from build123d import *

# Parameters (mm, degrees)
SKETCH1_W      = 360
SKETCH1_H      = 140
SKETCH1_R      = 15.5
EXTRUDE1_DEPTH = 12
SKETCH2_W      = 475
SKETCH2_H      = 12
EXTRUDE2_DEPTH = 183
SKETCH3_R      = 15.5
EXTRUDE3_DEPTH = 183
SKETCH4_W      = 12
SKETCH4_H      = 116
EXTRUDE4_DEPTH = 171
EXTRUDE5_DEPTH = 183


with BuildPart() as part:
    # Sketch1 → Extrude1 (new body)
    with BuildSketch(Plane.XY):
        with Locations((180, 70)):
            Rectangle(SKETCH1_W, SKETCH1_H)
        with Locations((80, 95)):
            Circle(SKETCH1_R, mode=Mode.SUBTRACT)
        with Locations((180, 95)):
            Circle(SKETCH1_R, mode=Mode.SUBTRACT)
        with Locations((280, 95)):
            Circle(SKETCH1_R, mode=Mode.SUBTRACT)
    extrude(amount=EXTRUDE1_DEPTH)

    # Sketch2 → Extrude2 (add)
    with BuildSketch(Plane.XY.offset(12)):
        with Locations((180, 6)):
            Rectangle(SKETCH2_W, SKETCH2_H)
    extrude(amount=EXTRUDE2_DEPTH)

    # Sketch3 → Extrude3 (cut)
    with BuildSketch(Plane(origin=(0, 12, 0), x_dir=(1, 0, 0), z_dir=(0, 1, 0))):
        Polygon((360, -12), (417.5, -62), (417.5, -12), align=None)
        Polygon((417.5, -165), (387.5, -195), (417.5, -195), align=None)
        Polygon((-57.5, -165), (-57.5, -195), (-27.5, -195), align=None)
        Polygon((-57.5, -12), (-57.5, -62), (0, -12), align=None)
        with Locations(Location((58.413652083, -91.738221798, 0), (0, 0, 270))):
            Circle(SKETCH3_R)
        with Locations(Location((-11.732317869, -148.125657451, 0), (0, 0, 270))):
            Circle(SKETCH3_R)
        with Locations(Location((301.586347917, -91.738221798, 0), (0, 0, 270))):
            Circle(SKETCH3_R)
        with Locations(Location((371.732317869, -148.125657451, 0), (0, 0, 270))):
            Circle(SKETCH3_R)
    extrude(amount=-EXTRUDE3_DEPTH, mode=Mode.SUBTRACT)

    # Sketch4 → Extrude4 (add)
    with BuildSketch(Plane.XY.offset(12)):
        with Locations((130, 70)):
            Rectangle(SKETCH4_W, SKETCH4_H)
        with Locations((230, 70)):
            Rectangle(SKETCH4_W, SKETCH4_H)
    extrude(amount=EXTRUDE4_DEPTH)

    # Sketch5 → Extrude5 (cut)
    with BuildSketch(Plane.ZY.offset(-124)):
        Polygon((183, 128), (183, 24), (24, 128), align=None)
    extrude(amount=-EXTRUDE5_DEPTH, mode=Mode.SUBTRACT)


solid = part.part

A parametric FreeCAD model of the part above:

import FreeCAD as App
import Part
import Sketcher


def add_polygon(sketch, points):
    """Adds a closed chain of lines whose ends are joined by coincident constraints."""
    first, n = sketch.GeometryCount, len(points)
    for a, b in zip(points, points[1:] + points[:1]):
        sketch.addGeometry(Part.LineSegment(App.Vector(*a, 0), App.Vector(*b, 0)), False)
    for i in range(n):
        sketch.addConstraint(Sketcher.Constraint("Coincident", first + i, 2, first + (i + 1) % n, 1))

doc = App.newDocument("Part")
params = doc.addObject("Spreadsheet::Sheet", "Params")
for row, (alias, value) in enumerate([
    ("sketch1_diameter", "31 mm"),
    ("sketch1_width", "360 mm"),
    ("sketch1_height", "140 mm"),
    ("pad1_length", "12 mm"),
    ("sketch2_width", "475 mm"),
    ("sketch2_height", "12 mm"),
    ("pad2_length", "183 mm"),
    ("sketch3_diameter", "31 mm"),
    ("sketch3_width", "30 mm"),
    ("sketch3_height", "50 mm"),
    ("sketch3_width2", "57.5 mm"),
    ("pocket1_length", "183 mm"),
    ("sketch4_width", "12 mm"),
    ("sketch4_height", "116 mm"),
    ("pad3_length", "171 mm"),
    ("sketch5_width", "104 mm"),
    ("sketch5_height", "159 mm"),
    ("pocket2_length", "183 mm"),
], start=1):
    params.set(f"A{row}", alias)
    params.set(f"B{row}", "=" + value)
    params.setAlias(f"B{row}", alias)

body = doc.addObject("PartDesign::Body", "Body")

# Sketch on XY plane
sketch1 = body.newObject("Sketcher::SketchObject", "Sketch")
sketch1.AttachmentSupport = (doc.getObject("XY_Plane"), [""])
sketch1.MapMode = "FlatFace"
add_polygon(sketch1, [(0, 140), (0, 0), (360, 0), (360, 140)])  # lines 0-3
sketch1.addGeometry(Part.Circle(App.Vector(80, 95, 0), App.Vector(0, 0, 1), 16), False)  # 4
sketch1.addGeometry(Part.Circle(App.Vector(180, 95, 0), App.Vector(0, 0, 1), 16), False)  # 5
sketch1.addGeometry(Part.Circle(App.Vector(280, 95, 0), App.Vector(0, 0, 1), 16), False)  # 6
sketch1.addConstraint(Sketcher.Constraint("Vertical", 0))
sketch1.addConstraint(Sketcher.Constraint("Horizontal", 1))
sketch1.addConstraint(Sketcher.Constraint("Vertical", 2))
sketch1.addConstraint(Sketcher.Constraint("Horizontal", 3))
sketch1.addConstraint(Sketcher.Constraint("Coincident", 0, 2, -1, 1))
sketch1.addConstraint(Sketcher.Constraint("Equal", 4, 5))
sketch1.addConstraint(Sketcher.Constraint("Equal", 5, 6))
sketch1.addConstraint(Sketcher.Constraint("Horizontal", 4, 3, 5, 3))
sketch1.addConstraint(Sketcher.Constraint("Horizontal", 5, 3, 6, 3))
sketch1.addConstraint(Sketcher.Constraint("Diameter", 4, 31.0))
sketch1.addConstraint(Sketcher.Constraint("DistanceX", 1, 1, 1, 2, 360.0))
sketch1.addConstraint(Sketcher.Constraint("DistanceY", 0, 2, 0, 1, 140.0))
sketch1.addConstraint(Sketcher.Constraint("DistanceX", -1, 1, 4, 3, 80.0))
sketch1.addConstraint(Sketcher.Constraint("DistanceY", -1, 1, 4, 3, 95.0))
sketch1.addConstraint(Sketcher.Constraint("DistanceX", -1, 1, 5, 3, 180.0))
sketch1.addConstraint(Sketcher.Constraint("DistanceX", -1, 1, 6, 3, 280.0))
sketch1.setExpression("Constraints[13]", "Params.sketch1_diameter")
sketch1.setExpression("Constraints[14]", "Params.sketch1_width")
sketch1.setExpression("Constraints[15]", "Params.sketch1_height")
pad1 = body.newObject("PartDesign::Pad", "Pad")
pad1.Profile = sketch1
pad1.setExpression("Length", "Params.pad1_length")

# Sketch on XY plane
sketch2 = body.newObject("Sketcher::SketchObject", "Sketch001")
sketch2.AttachmentSupport = (doc.getObject("XY_Plane"), [""])
sketch2.MapMode = "FlatFace"
sketch2.AttachmentOffset = App.Placement(App.Vector(0, 0, 12), App.Rotation())
add_polygon(sketch2, [(-58, 12), (-58, 0), (418, 0), (418, 12)])  # lines 0-3
sketch2.addConstraint(Sketcher.Constraint("Vertical", 0))
sketch2.addConstraint(Sketcher.Constraint("Horizontal", 1))
sketch2.addConstraint(Sketcher.Constraint("Vertical", 2))
sketch2.addConstraint(Sketcher.Constraint("Horizontal", 3))
sketch2.addConstraint(Sketcher.Constraint("PointOnObject", 0, 2, -1))
sketch2.addConstraint(Sketcher.Constraint("DistanceX", 1, 1, 1, 2, 475.0))
sketch2.addConstraint(Sketcher.Constraint("DistanceY", 0, 2, 0, 1, 12.0))
sketch2.addConstraint(Sketcher.Constraint("DistanceX", 0, 2, -1, 1, 57.5))
sketch2.setExpression("Constraints[9]", "Params.sketch2_width")
sketch2.setExpression("Constraints[10]", "Params.sketch2_height")
pad2 = body.newObject("PartDesign::Pad", "Pad001")
pad2.Profile = sketch2
pad2.setExpression("Length", "Params.pad2_length")

# Sketch on XZ plane
sketch3 = body.newObject("Sketcher::SketchObject", "Sketch002")
sketch3.AttachmentSupport = (doc.getObject("XZ_Plane"), [""])
sketch3.MapMode = "FlatFace"
sketch3.AttachmentOffset = App.Placement(App.Vector(0, 0, -12), App.Rotation())
add_polygon(sketch3, [(360, 12), (418, 62), (418, 12)])  # lines 0-2
add_polygon(sketch3, [(418, 165), (388, 195), (418, 195)])  # lines 3-5
add_polygon(sketch3, [(-58, 165), (-58, 195), (-28, 195)])  # lines 6-8
add_polygon(sketch3, [(-58, 12), (-58, 62), (0, 12)])  # lines 9-11
sketch3.addGeometry(Part.Circle(App.Vector(58, 92, 0), App.Vector(0, 0, 1), 16), False)  # 12
sketch3.addGeometry(Part.Circle(App.Vector(-12, 148, 0), App.Vector(0, 0, 1), 16), False)  # 13
sketch3.addGeometry(Part.Circle(App.Vector(302, 92, 0), App.Vector(0, 0, 1), 16), False)  # 14
sketch3.addGeometry(Part.Circle(App.Vector(372, 148, 0), App.Vector(0, 0, 1), 16), False)  # 15
sketch3.addConstraint(Sketcher.Constraint("Vertical", 1))
sketch3.addConstraint(Sketcher.Constraint("Horizontal", 2))
sketch3.addConstraint(Sketcher.Constraint("Horizontal", 4))
sketch3.addConstraint(Sketcher.Constraint("Vertical", 5))
sketch3.addConstraint(Sketcher.Constraint("Vertical", 6))
sketch3.addConstraint(Sketcher.Constraint("Horizontal", 7))
sketch3.addConstraint(Sketcher.Constraint("Vertical", 9))
sketch3.addConstraint(Sketcher.Constraint("Horizontal", 11))
sketch3.addConstraint(Sketcher.Constraint("Equal", 12, 13))
sketch3.addConstraint(Sketcher.Constraint("Equal", 13, 14))
sketch3.addConstraint(Sketcher.Constraint("Equal", 14, 15))
sketch3.addConstraint(Sketcher.Constraint("PointOnObject", 10, 2, -2))
sketch3.addConstraint(Sketcher.Constraint("Perpendicular", 3, 8))
sketch3.addConstraint(Sketcher.Constraint("Horizontal", 12, 3, 14, 3))
sketch3.addConstraint(Sketcher.Constraint("Horizontal", 13, 3, 15, 3))
sketch3.addConstraint(Sketcher.Constraint("Horizontal", 4, 2, 6, 2))
sketch3.addConstraint(Sketcher.Constraint("Horizontal", 5, 2, 8, 2))
sketch3.addConstraint(Sketcher.Constraint("Horizontal", 0, 2, 9, 2))
sketch3.addConstraint(Sketcher.Constraint("Horizontal", 2, 2, 10, 2))
sketch3.addConstraint(Sketcher.Constraint("Vertical", 1, 2, 4, 2))
sketch3.addConstraint(Sketcher.Constraint("Vertical", 8, 2, 9, 2))
sketch3.addConstraint(Sketcher.Constraint("Equal", 4, 7))
sketch3.addConstraint(Sketcher.Constraint("Equal", 2, 11))
sketch3.addConstraint(Sketcher.Constraint("Diameter", 12, 31.0))
sketch3.addConstraint(Sketcher.Constraint("DistanceX", 4, 1, 4, 2, 30.0))
sketch3.addConstraint(Sketcher.Constraint("DistanceY", 1, 2, 1, 1, 50.0))
sketch3.addConstraint(Sketcher.Constraint("DistanceX", 2, 2, 2, 1, 57.5))
sketch3.addConstraint(Sketcher.Constraint("DistanceY", -1, 1, 0, 2, 62.0))
sketch3.addConstraint(Sketcher.Constraint("DistanceX", -1, 1, 2, 2, 360.0))
sketch3.addConstraint(Sketcher.Constraint("DistanceY", -1, 1, 3, 2, 195.0))
sketch3.addConstraint(Sketcher.Constraint("DistanceY", -1, 1, 12, 3, 91.738222))
sketch3.addConstraint(Sketcher.Constraint("DistanceX", 13, 3, 12, 3, 70.14597))
sketch3.addConstraint(Sketcher.Constraint("DistanceX", 14, 3, 15, 3, 70.14597))
sketch3.addConstraint(Sketcher.Constraint("DistanceX", -1, 1, 12, 3, 58.413652))
sketch3.addConstraint(Sketcher.Constraint("DistanceY", -1, 1, 13, 3, 148.125657))
sketch3.addConstraint(Sketcher.Constraint("DistanceX", -1, 1, 14, 3, 301.586348))
sketch3.setExpression("Constraints[35]", "Params.sketch3_diameter")
sketch3.setExpression("Constraints[36]", "Params.sketch3_width")
sketch3.setExpression("Constraints[37]", "Params.sketch3_height")
sketch3.setExpression("Constraints[38]", "Params.sketch3_width2")
pocket1 = body.newObject("PartDesign::Pocket", "Pocket")
pocket1.Profile = sketch3
pocket1.setExpression("Length", "Params.pocket1_length")
pocket1.Reversed = True

# Sketch on XY plane
sketch4 = body.newObject("Sketcher::SketchObject", "Sketch003")
sketch4.AttachmentSupport = (doc.getObject("XY_Plane"), [""])
sketch4.MapMode = "FlatFace"
sketch4.AttachmentOffset = App.Placement(App.Vector(0, 0, 12), App.Rotation())
add_polygon(sketch4, [(124, 128), (124, 12), (136, 12), (136, 128)])  # lines 0-3
add_polygon(sketch4, [(224, 128), (224, 12), (236, 12), (236, 128)])  # lines 4-7
sketch4.addConstraint(Sketcher.Constraint("Vertical", 0))
sketch4.addConstraint(Sketcher.Constraint("Horizontal", 1))
sketch4.addConstraint(Sketcher.Constraint("Vertical", 2))
sketch4.addConstraint(Sketcher.Constraint("Horizontal", 3))
sketch4.addConstraint(Sketcher.Constraint("Vertical", 4))
sketch4.addConstraint(Sketcher.Constraint("Horizontal", 5))
sketch4.addConstraint(Sketcher.Constraint("Vertical", 6))
sketch4.addConstraint(Sketcher.Constraint("Horizontal", 7))
sketch4.addConstraint(Sketcher.Constraint("Horizontal", 1, 2, 4, 2))
sketch4.addConstraint(Sketcher.Constraint("Horizontal", 3, 2, 6, 2))
sketch4.addConstraint(Sketcher.Constraint("Equal", 3, 5))
sketch4.addConstraint(Sketcher.Constraint("DistanceX", 1, 1, 1, 2, 12.0))
sketch4.addConstraint(Sketcher.Constraint("DistanceY", 0, 2, 0, 1, 116.0))
sketch4.addConstraint(Sketcher.Constraint("DistanceX", -1, 1, 0, 2, 124.0))
sketch4.addConstraint(Sketcher.Constraint("DistanceY", -1, 1, 0, 2, 12.0))
sketch4.addConstraint(Sketcher.Constraint("DistanceX", -1, 1, 4, 2, 224.0))
sketch4.setExpression("Constraints[19]", "Params.sketch4_width")
sketch4.setExpression("Constraints[20]", "Params.sketch4_height")
pad3 = body.newObject("PartDesign::Pad", "Pad002")
pad3.Profile = sketch4
pad3.setExpression("Length", "Params.pad3_length")

# Sketch on YZ plane
sketch5 = body.newObject("Sketcher::SketchObject", "Sketch004")
sketch5.AttachmentSupport = (doc.getObject("YZ_Plane"), [""])
sketch5.MapMode = "FlatFace"
sketch5.AttachmentOffset = App.Placement(App.Vector(0, 0, 124), App.Rotation())
add_polygon(sketch5, [(24, 183), (128, 183), (128, 24)])  # lines 0-2
sketch5.addConstraint(Sketcher.Constraint("Horizontal", 0))
sketch5.addConstraint(Sketcher.Constraint("Vertical", 1))
sketch5.addConstraint(Sketcher.Constraint("DistanceX", 0, 1, 0, 2, 104.0))
sketch5.addConstraint(Sketcher.Constraint("DistanceY", 1, 2, 1, 1, 159.0))
sketch5.addConstraint(Sketcher.Constraint("DistanceX", -1, 1, 0, 2, 128.0))
sketch5.addConstraint(Sketcher.Constraint("DistanceY", -1, 1, 0, 2, 183.0))
sketch5.setExpression("Constraints[5]", "Params.sketch5_width")
sketch5.setExpression("Constraints[6]", "Params.sketch5_height")
pocket2 = body.newObject("PartDesign::Pocket", "Pocket001")
pocket2.Profile = sketch5
pocket2.setExpression("Length", "Params.pocket2_length")
pocket2.Reversed = True

doc.recompute()
